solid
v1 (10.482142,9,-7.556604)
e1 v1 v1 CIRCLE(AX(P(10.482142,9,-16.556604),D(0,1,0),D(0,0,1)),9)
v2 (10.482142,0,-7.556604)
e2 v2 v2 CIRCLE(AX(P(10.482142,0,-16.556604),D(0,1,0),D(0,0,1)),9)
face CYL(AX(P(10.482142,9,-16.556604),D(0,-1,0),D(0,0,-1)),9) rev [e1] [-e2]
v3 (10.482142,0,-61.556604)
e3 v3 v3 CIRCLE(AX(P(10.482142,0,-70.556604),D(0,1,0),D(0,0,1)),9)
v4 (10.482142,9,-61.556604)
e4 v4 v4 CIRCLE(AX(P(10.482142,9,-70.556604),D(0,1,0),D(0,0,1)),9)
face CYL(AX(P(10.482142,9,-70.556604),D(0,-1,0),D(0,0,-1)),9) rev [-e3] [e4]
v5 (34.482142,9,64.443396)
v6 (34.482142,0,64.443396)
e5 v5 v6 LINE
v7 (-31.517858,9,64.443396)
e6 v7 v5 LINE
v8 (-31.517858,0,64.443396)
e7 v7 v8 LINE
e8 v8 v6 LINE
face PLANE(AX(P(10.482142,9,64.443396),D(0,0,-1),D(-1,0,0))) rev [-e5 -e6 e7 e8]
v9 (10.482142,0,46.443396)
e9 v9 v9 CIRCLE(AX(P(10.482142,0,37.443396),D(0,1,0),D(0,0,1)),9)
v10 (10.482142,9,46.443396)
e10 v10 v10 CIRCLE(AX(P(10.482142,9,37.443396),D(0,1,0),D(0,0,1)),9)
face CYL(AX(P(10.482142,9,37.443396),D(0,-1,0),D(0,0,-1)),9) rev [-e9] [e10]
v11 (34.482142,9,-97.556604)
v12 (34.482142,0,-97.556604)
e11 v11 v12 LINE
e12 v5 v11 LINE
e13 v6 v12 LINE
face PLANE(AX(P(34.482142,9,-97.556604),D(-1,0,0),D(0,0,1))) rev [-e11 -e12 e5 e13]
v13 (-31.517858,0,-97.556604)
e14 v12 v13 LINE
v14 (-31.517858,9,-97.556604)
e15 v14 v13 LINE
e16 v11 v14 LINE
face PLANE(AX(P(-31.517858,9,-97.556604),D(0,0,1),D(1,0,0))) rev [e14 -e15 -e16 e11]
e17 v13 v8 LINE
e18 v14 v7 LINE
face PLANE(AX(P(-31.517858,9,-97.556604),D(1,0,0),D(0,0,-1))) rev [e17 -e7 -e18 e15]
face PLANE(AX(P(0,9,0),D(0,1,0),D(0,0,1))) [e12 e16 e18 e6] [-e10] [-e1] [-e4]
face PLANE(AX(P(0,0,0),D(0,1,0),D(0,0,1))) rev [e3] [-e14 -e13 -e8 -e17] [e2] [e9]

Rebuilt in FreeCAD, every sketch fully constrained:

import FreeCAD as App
import Part
import Sketcher
from FreeCAD import Vector

doc = App.newDocument("Part")
body = doc.addObject("PartDesign::Body", "Body")

sketch1 = body.newObject("Sketcher::SketchObject", "Sketch")
sketch1.AttachmentSupport = (doc.getObject("XZ_Plane"), [""])
sketch1.MapMode = "FlatFace"
sketch1.addGeometry([
    Part.LineSegment(Vector(34, -98, 0), Vector(-32, -98, 0)),
    Part.LineSegment(Vector(-32, -98, 0), Vector(-32, 64, 0)),
    Part.LineSegment(Vector(-32, 64, 0), Vector(34, 64, 0)),
    Part.LineSegment(Vector(34, 64, 0), Vector(34, -98, 0)),
    Part.Circle(Vector(10, 37, 0), Vector(0, 0, 1), 9),
    Part.Circle(Vector(10, -17, 0), Vector(0, 0, 1), 9),
    Part.Circle(Vector(10, -71, 0), Vector(0, 0, 1), 9),
], False)
sketch1.addConstraint([
    Sketcher.Constraint("Coincident", 0, 2, 1, 1),
    Sketcher.Constraint("Coincident", 1, 2, 2, 1),
    Sketcher.Constraint("Coincident", 2, 2, 3, 1),
    Sketcher.Constraint("Coincident", 3, 2, 0, 1),
    Sketcher.Constraint("Horizontal", 0),
    Sketcher.Constraint("Vertical", 1),
    Sketcher.Constraint("Horizontal", 2),
    Sketcher.Constraint("Vertical", 3),
    Sketcher.Constraint("Equal", 4, 5),
    Sketcher.Constraint("Equal", 5, 6),
    Sketcher.Constraint("Vertical", 4, 3, 5, 3),
    Sketcher.Constraint("Vertical", 5, 3, 6, 3),
    Sketcher.Constraint("Diameter", 4, 18.0),
    Sketcher.Constraint("DistanceX", 0, 2, 0, 1, 66.0),
    Sketcher.Constraint("DistanceY", 1, 1, 1, 2, 162.0),
    Sketcher.Constraint("DistanceY", 5, 3, 4, 3, 54.0),
    Sketcher.Constraint("DistanceY", 6, 3, 5, 3, 54.0),
    Sketcher.Constraint("DistanceX", 0, 2, 6, 3, 42.0),
    Sketcher.Constraint("DistanceY", 0, 2, 6, 3, 27.0),
    Sketcher.Constraint("DistanceX", -1, 1, 4, 3, 10.482142),
    Sketcher.Constraint("DistanceY", -1, 1, 4, 3, 37.443396),
])
pad1 = body.newObject("PartDesign::Pad", "Pad")
pad1.Profile = sketch1
pad1.Length = 9
pad1.Reversed = True

doc.recompute()
